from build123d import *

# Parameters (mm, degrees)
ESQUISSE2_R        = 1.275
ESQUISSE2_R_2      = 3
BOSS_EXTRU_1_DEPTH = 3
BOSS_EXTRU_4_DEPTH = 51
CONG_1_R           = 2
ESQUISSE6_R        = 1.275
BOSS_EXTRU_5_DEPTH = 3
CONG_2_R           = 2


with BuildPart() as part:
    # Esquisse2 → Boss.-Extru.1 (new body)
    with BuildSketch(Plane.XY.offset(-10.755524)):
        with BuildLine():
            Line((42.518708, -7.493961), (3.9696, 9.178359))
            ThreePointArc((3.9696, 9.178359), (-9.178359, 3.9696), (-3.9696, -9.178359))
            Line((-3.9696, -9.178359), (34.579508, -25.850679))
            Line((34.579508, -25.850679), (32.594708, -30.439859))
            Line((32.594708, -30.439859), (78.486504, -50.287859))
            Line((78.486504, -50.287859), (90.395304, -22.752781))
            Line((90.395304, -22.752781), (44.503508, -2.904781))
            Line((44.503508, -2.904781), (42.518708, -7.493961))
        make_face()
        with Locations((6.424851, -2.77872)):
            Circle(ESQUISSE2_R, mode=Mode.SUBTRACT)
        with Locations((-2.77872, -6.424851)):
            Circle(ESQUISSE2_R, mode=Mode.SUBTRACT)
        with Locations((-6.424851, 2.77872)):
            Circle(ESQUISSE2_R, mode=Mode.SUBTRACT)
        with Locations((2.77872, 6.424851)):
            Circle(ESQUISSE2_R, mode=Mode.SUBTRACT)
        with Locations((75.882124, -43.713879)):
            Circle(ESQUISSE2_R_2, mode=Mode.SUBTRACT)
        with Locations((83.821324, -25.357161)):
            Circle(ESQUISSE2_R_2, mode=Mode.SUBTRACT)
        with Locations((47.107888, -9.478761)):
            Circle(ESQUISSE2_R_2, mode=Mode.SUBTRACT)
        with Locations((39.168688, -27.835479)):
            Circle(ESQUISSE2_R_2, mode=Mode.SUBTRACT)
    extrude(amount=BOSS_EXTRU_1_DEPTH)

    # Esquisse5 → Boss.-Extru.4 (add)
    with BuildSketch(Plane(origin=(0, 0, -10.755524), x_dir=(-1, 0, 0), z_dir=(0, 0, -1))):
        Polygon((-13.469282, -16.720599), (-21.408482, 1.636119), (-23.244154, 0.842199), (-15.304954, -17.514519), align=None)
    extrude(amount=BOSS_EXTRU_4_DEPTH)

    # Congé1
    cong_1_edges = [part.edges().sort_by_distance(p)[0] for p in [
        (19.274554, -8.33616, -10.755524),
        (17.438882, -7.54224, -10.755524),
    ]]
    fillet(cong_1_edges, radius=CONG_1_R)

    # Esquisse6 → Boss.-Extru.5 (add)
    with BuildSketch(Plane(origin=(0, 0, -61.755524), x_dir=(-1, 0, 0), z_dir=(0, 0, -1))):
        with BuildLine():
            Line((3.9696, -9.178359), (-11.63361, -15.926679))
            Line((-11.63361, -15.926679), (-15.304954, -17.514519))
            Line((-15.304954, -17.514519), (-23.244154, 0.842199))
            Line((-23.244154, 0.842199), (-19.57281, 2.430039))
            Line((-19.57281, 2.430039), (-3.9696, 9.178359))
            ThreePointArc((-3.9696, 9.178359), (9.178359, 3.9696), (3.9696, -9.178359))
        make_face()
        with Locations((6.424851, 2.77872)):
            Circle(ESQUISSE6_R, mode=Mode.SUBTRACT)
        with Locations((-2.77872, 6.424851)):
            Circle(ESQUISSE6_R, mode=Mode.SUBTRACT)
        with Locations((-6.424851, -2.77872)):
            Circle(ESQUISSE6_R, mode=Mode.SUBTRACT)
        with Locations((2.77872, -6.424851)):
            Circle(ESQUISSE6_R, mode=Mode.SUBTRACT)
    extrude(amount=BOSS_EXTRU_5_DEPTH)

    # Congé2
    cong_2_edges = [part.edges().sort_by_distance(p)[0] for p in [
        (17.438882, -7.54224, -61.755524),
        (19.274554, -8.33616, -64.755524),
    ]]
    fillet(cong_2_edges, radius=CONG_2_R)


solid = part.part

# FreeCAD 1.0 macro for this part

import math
import FreeCAD as App
import Part
import Sketcher


def edges_at(feature, points):
    """Names of the edges that pass closest to the given points."""
    edges = feature.Shape.Edges
    near = lambda p: min(range(len(edges)), key=lambda i: edges[i].distToShape(Part.Vertex(*p))[0])
    return sorted({f"Edge{near(p) + 1}" for p in points})


def add_polygon(sketch, points):
    """Adds a closed chain of lines whose ends are joined by coincident constraints."""
    first, n = sketch.GeometryCount, len(points)
    for a, b in zip(points, points[1:] + points[:1]):
        sketch.addGeometry(Part.LineSegment(App.Vector(*a, 0), App.Vector(*b, 0)), False)
    for i in range(n):
        sketch.addConstraint(Sketcher.Constraint("Coincident", first + i, 2, first + (i + 1) % n, 1))

doc = App.newDocument("Part")
params = doc.addObject("Spreadsheet::Sheet", "Params")
for row, (alias, value) in enumerate([
    ("sketch1_diameter", "6 mm"),
    ("sketch1_radius", "10 mm"),
    ("sketch1_diameter2", "2.55 mm"),
    ("sketch1_length", "42 mm"),
    ("sketch1_length2", "5 mm"),
    ("pad1_length", "3 mm"),
    ("sketch2_length", "20 mm"),
    ("sketch2_length2", "2 mm"),
    ("pad2_length", "51 mm"),
    ("fillet_radius", "2 mm"),
    ("sketch3_radius", "10 mm"),
    ("sketch3_diameter", "2.55 mm"),
    ("sketch3_length", "17 mm"),
    ("sketch3_length2", "4 mm"),
    ("pad3_length", "3 mm"),
    ("fillet2_radius", "2 mm"),
], start=1):
    params.set(f"A{row}", alias)
    params.set(f"B{row}", "=" + value)
    params.setAlias(f"B{row}", alias)

body = doc.addObject("PartDesign::Body", "Body")

sketch1 = body.newObject("Sketcher::SketchObject", "Sketch")
sketch1.AttachmentSupport = (doc.getObject("XY_Plane"), [""])
sketch1.MapMode = "FlatFace"
sketch1.AttachmentOffset = App.Placement(App.Vector(0, 0, -10.755524), App.Rotation())
sketch1.addGeometry(Part.LineSegment(App.Vector(42.518708, -7.493961, 0), App.Vector(3.9696, 9.178359, 0)), False)
sketch1.addGeometry(Part.ArcOfCircle(Part.Circle(App.Vector(0, 0, 0), App.Vector(0, 0, 1), 10), math.radians(66.611729), math.radians(246.611729)), False)
sketch1.addGeometry(Part.LineSegment(App.Vector(-3.9696, -9.178359, 0), App.Vector(34.579508, -25.850679, 0)), False)
sketch1.addGeometry(Part.LineSegment(App.Vector(34.579508, -25.850679, 0), App.Vector(32.594708, -30.439859, 0)), False)
sketch1.addGeometry(Part.LineSegment(App.Vector(32.594708, -30.439859, 0), App.Vector(78.486504, -50.287859, 0)), False)
sketch1.addGeometry(Part.LineSegment(App.Vector(78.486504, -50.287859, 0), App.Vector(90.395304, -22.752781, 0)), False)
sketch1.addGeometry(Part.LineSegment(App.Vector(90.395304, -22.752781, 0), App.Vector(44.503508, -2.904781, 0)), False)
sketch1.addGeometry(Part.LineSegment(App.Vector(44.503508, -2.904781, 0), App.Vector(42.518708, -7.493961, 0)), False)
sketch1.addGeometry(Part.Circle(App.Vector(39.168688, -27.835479, 0), App.Vector(0, 0, 1), 3), False)
sketch1.addGeometry(Part.Circle(App.Vector(75.882124, -43.713879, 0), App.Vector(0, 0, 1), 3), False)
sketch1.addGeometry(Part.Circle(App.Vector(83.821324, -25.357161, 0), App.Vector(0, 0, 1), 3), False)
sketch1.addGeometry(Part.Circle(App.Vector(-2.77872, -6.424851, 0), App.Vector(0, 0, 1), 1.275), False)
sketch1.addGeometry(Part.Circle(App.Vector(6.424851, -2.77872, 0), App.Vector(0, 0, 1), 1.275), False)
sketch1.addGeometry(Part.Circle(App.Vector(-6.424851, 2.77872, 0), App.Vector(0, 0, 1), 1.275), False)
sketch1.addGeometry(Part.Circle(App.Vector(2.77872, 6.424851, 0), App.Vector(0, 0, 1), 1.275), False)
sketch1.addGeometry(Part.Circle(App.Vector(47.107888, -9.478761, 0), App.Vector(0, 0, 1), 3), False)
sketch1.addConstraint(Sketcher.Constraint("Tangent", 0, 2, 1, 1))
sketch1.addConstraint(Sketcher.Constraint("Tangent", 1, 2, 2, 1))
sketch1.addConstraint(Sketcher.Constraint("Coincident", 2, 2, 3, 1))
sketch1.addConstraint(Sketcher.Constraint("Coincident", 3, 2, 4, 1))
sketch1.addConstraint(Sketcher.Constraint("Coincident", 4, 2, 5, 1))
sketch1.addConstraint(Sketcher.Constraint("Coincident", 5, 2, 6, 1))
sketch1.addConstraint(Sketcher.Constraint("Coincident", 6, 2, 7, 1))
sketch1.addConstraint(Sketcher.Constraint("Coincident", 7, 2, 0, 1))
sketch1.addConstraint(Sketcher.Constraint("Coincident", 1, 3, -1, 1))
sketch1.addConstraint(Sketcher.Constraint("Equal", 8, 9))
sketch1.addConstraint(Sketcher.Constraint("Equal", 9, 10))
sketch1.addConstraint(Sketcher.Constraint("Equal", 11, 12))
sketch1.addConstraint(Sketcher.Constraint("Equal", 12, 13))
sketch1.addConstraint(Sketcher.Constraint("Equal", 13, 14))
sketch1.addConstraint(Sketcher.Constraint("Equal", 10, 15))
sketch1.addConstraint(Sketcher.Constraint("Symmetric", 12, 3, 13, 3, -1, 1))
sketch1.addConstraint(Sketcher.Constraint("Symmetric", 11, 3, 14, 3, -1, 1))
sketch1.addConstraint(Sketcher.Constraint("Parallel", 0, 2))
sketch1.addConstraint(Sketcher.Constraint("Perpendicular", 2, 3))
sketch1.addConstraint(Sketcher.Constraint("Perpendicular", 3, 4))
sketch1.addConstraint(Sketcher.Constraint("Perpendicular", 4, 5))
sketch1.addConstraint(Sketcher.Constraint("Perpendicular", 5, 6))
sketch1.addConstraint(Sketcher.Constraint("Perpendicular", 6, 7))
sketch1.addConstraint(Sketcher.Constraint("Equal", 0, 2))
sketch1.addConstraint(Sketcher.Constraint("Equal", 3, 7))
sketch1.addConstraint(Sketcher.Constraint("Diameter", 8, 6.0))
sketch1.addConstraint(Sketcher.Constraint("Radius", 1, 10.0))
sketch1.addConstraint(Sketcher.Constraint("Diameter", 11, 2.55))
sketch1.addConstraint(Sketcher.Constraint("Distance", 0, 42.0))
sketch1.addConstraint(Sketcher.Constraint("Distance", 3, 5.0))
sketch1.addConstraint(Sketcher.Constraint("Distance", 4, 50.0))
sketch1.addConstraint(Sketcher.Constraint("DistanceY", 4, 2, 3, 2, 19.848))
sketch1.addConstraint(Sketcher.Constraint("DistanceY", 9, 3, 8, 3, 15.8784))
sketch1.addConstraint(Sketcher.Constraint("DistanceX", 9, 3, 10, 3, 7.9392))
sketch1.addConstraint(Sketcher.Constraint("DistanceY", 8, 3, 13, 3, 30.614199))
sketch1.addConstraint(Sketcher.Constraint("DistanceX", 8, 3, 15, 3, 7.9392))
sketch1.addConstraint(Sketcher.Constraint("DistanceY", 10, 3, 15, 3, 15.8784))
sketch1.addConstraint(Sketcher.Constraint("DistanceY", 8, 3, 2, 2, 1.9848))
sketch1.addConstraint(Sketcher.Constraint("DistanceY", 3, 2, 15, 3, 20.961098))
sketch1.addConstraint(Sketcher.Constraint("DistanceX", -1, 1, 8, 3, 39.168688))
sketch1.addConstraint(Sketcher.Constraint("DistanceX", 11, 3, -1, 1, 2.77872))
sketch1.addConstraint(Sketcher.Constraint("DistanceY", 11, 3, -1, 1, 6.424851))
sketch1.addConstraint(Sketcher.Constraint("DistanceX", -1, 1, 12, 3, 6.424851))
sketch1.addConstraint(Sketcher.Constraint("DistanceX", 9, 3, 4, 2, 2.60438))
sketch1.setExpression("Constraints[25]", "Params.sketch1_diameter")
sketch1.setExpression("Constraints[26]", "Params.sketch1_radius")
sketch1.setExpression("Constraints[27]", "Params.sketch1_diameter2")
sketch1.setExpression("Constraints[28]", "Params.sketch1_length")
sketch1.setExpression("Constraints[29]", "Params.sketch1_length2")
pad1 = body.newObject("PartDesign::Pad", "Pad")
pad1.Profile = sketch1
pad1.setExpression("Length", "Params.pad1_length")

sketch2 = body.newObject("Sketcher::SketchObject", "Sketch001")
sketch2.AttachmentSupport = (doc.getObject("XY_Plane"), [""])
sketch2.MapMode = "FlatFace"
sketch2.AttachmentOffset = App.Placement(App.Vector(0, 0, -10.755524), App.Rotation())
add_polygon(sketch2, [(13.469282, -16.720599), (21.408482, 1.636119), (23.244154, 0.842199), (15.304954, -17.514519)])
sketch2.addConstraint(Sketcher.Constraint("Perpendicular", 0, 1))
sketch2.addConstraint(Sketcher.Constraint("Perpendicular", 1, 2))
sketch2.addConstraint(Sketcher.Constraint("Perpendicular", 2, 3))
sketch2.addConstraint(Sketcher.Constraint("Distance", 0, 20.0))
sketch2.addConstraint(Sketcher.Constraint("Distance", 1, 2.0))
sketch2.addConstraint(Sketcher.Constraint("DistanceY", -1, 1, 1, 2, 0.842199))
sketch2.addConstraint(Sketcher.Constraint("DistanceY", 3, 2, -1, 1, 16.720599))
sketch2.addConstraint(Sketcher.Constraint("DistanceX", -1, 1, 0, 2, 21.408482))
sketch2.setExpression("Constraints[7]", "Params.sketch2_length")
sketch2.setExpression("Constraints[8]", "Params.sketch2_length2")
pad2 = body.newObject("PartDesign::Pad", "Pad001")
pad2.Profile = sketch2
pad2.setExpression("Length", "Params.pad2_length")
pad2.Reversed = True
doc.recompute()

fillet = body.newObject("PartDesign::Fillet", "Fillet")
fillet.Base = (pad2, edges_at(pad2, [(19.275, -8.336, -10.756), (17.439, -7.542, -10.756)]))
fillet.setExpression("Radius", "Params.fillet_radius")

sketch3 = body.newObject("Sketcher::SketchObject", "Sketch002")
sketch3.AttachmentSupport = (doc.getObject("XY_Plane"), [""])
sketch3.MapMode = "FlatFace"
sketch3.AttachmentOffset = App.Placement(App.Vector(0, 0, -61.755524), App.Rotation())
sketch3.addGeometry(Part.LineSegment(App.Vector(11.63361, -15.926679, 0), App.Vector(-3.9696, -9.178359, 0)), False)
sketch3.addGeometry(Part.ArcOfCircle(Part.Circle(App.Vector(0, 0, 0), App.Vector(0, 0, 1), 10), math.radians(66.611729), math.radians(246.611729)), False)
sketch3.addGeometry(Part.LineSegment(App.Vector(3.9696, 9.178359, 0), App.Vector(19.57281, 2.430039, 0)), False)
sketch3.addGeometry(Part.LineSegment(App.Vector(19.57281, 2.430039, 0), App.Vector(23.244154, 0.842199, 0)), False)
sketch3.addGeometry(Part.LineSegment(App.Vector(23.244154, 0.842199, 0), App.Vector(15.304954, -17.514519, 0)), False)
sketch3.addGeometry(Part.LineSegment(App.Vector(15.304954, -17.514519, 0), App.Vector(11.63361, -15.926679, 0)), False)
sketch3.addGeometry(Part.Circle(App.Vector(-2.77872, -6.424851, 0), App.Vector(0, 0, 1), 1.275), False)
sketch3.addGeometry(Part.Circle(App.Vector(6.424851, -2.77872, 0), App.Vector(0, 0, 1), 1.275), False)
sketch3.addGeometry(Part.Circle(App.Vector(-6.424851, 2.77872, 0), App.Vector(0, 0, 1), 1.275), False)
sketch3.addGeometry(Part.Circle(App.Vector(2.77872, 6.424851, 0), App.Vector(0, 0, 1), 1.275), False)
sketch3.addConstraint(Sketcher.Constraint("Tangent", 0, 2, 1, 2))
sketch3.addConstraint(Sketcher.Constraint("Tangent", 1, 1, 2, 1))
sketch3.addConstraint(Sketcher.Constraint("Coincident", 2, 2, 3, 1))
sketch3.addConstraint(Sketcher.Constraint("Coincident", 3, 2, 4, 1))
sketch3.addConstraint(Sketcher.Constraint("Coincident", 4, 2, 5, 1))
sketch3.addConstraint(Sketcher.Constraint("Coincident", 5, 2, 0, 1))
sketch3.addConstraint(Sketcher.Constraint("Coincident", 1, 3, -1, 1))
sketch3.addConstraint(Sketcher.Constraint("Equal", 6, 7))
sketch3.addConstraint(Sketcher.Constraint("Equal", 7, 8))
sketch3.addConstraint(Sketcher.Constraint("Equal", 8, 9))
sketch3.addConstraint(Sketcher.Constraint("Symmetric", 7, 3, 8, 3, -1, 1))
sketch3.addConstraint(Sketcher.Constraint("Symmetric", 6, 3, 9, 3, -1, 1))
sketch3.addConstraint(Sketcher.Constraint("Parallel", 0, 2))
sketch3.addConstraint(Sketcher.Constraint("Parallel", 2, 3))
sketch3.addConstraint(Sketcher.Constraint("Perpendicular", 3, 4))
sketch3.addConstraint(Sketcher.Constraint("Perpendicular", 4, 5))
sketch3.addConstraint(Sketcher.Constraint("Equal", 0, 2))
sketch3.addConstraint(Sketcher.Constraint("Radius", 1, 10.0))
sketch3.addConstraint(Sketcher.Constraint("Diameter", 6, 2.55))
sketch3.addConstraint(Sketcher.Constraint("Distance", 0, 17.0))
sketch3.addConstraint(Sketcher.Constraint("Distance", 3, 4.0))
sketch3.addConstraint(Sketcher.Constraint("DistanceX", 0, 2, -1, 1, 3.9696))
sketch3.addConstraint(Sketcher.Constraint("DistanceY", 4, 2, 7, 3, 14.735799))
sketch3.addConstraint(Sketcher.Constraint("DistanceX", 6, 3, -1, 1, 2.77872))
sketch3.addConstraint(Sketcher.Constraint("DistanceY", 6, 3, -1, 1, 6.424851))
sketch3.addConstraint(Sketcher.Constraint("DistanceX", -1, 1, 7, 3, 6.424851))
sketch3.setExpression("Constraints[17]", "Params.sketch3_radius")
sketch3.setExpression("Constraints[18]", "Params.sketch3_diameter")
sketch3.setExpression("Constraints[19]", "Params.sketch3_length")
sketch3.setExpression("Constraints[20]", "Params.sketch3_length2")
pad3 = body.newObject("PartDesign::Pad", "Pad002")
pad3.Profile = sketch3
pad3.setExpression("Length", "Params.pad3_length")
pad3.Reversed = True
doc.recompute()

fillet2 = body.newObject("PartDesign::Fillet", "Fillet001")
fillet2.Base = (pad3, edges_at(pad3, [(17.439, -7.542, -61.756), (19.275, -8.336, -64.756)]))
fillet2.setExpression("Radius", "Params.fillet2_radius")

doc.recompute()
